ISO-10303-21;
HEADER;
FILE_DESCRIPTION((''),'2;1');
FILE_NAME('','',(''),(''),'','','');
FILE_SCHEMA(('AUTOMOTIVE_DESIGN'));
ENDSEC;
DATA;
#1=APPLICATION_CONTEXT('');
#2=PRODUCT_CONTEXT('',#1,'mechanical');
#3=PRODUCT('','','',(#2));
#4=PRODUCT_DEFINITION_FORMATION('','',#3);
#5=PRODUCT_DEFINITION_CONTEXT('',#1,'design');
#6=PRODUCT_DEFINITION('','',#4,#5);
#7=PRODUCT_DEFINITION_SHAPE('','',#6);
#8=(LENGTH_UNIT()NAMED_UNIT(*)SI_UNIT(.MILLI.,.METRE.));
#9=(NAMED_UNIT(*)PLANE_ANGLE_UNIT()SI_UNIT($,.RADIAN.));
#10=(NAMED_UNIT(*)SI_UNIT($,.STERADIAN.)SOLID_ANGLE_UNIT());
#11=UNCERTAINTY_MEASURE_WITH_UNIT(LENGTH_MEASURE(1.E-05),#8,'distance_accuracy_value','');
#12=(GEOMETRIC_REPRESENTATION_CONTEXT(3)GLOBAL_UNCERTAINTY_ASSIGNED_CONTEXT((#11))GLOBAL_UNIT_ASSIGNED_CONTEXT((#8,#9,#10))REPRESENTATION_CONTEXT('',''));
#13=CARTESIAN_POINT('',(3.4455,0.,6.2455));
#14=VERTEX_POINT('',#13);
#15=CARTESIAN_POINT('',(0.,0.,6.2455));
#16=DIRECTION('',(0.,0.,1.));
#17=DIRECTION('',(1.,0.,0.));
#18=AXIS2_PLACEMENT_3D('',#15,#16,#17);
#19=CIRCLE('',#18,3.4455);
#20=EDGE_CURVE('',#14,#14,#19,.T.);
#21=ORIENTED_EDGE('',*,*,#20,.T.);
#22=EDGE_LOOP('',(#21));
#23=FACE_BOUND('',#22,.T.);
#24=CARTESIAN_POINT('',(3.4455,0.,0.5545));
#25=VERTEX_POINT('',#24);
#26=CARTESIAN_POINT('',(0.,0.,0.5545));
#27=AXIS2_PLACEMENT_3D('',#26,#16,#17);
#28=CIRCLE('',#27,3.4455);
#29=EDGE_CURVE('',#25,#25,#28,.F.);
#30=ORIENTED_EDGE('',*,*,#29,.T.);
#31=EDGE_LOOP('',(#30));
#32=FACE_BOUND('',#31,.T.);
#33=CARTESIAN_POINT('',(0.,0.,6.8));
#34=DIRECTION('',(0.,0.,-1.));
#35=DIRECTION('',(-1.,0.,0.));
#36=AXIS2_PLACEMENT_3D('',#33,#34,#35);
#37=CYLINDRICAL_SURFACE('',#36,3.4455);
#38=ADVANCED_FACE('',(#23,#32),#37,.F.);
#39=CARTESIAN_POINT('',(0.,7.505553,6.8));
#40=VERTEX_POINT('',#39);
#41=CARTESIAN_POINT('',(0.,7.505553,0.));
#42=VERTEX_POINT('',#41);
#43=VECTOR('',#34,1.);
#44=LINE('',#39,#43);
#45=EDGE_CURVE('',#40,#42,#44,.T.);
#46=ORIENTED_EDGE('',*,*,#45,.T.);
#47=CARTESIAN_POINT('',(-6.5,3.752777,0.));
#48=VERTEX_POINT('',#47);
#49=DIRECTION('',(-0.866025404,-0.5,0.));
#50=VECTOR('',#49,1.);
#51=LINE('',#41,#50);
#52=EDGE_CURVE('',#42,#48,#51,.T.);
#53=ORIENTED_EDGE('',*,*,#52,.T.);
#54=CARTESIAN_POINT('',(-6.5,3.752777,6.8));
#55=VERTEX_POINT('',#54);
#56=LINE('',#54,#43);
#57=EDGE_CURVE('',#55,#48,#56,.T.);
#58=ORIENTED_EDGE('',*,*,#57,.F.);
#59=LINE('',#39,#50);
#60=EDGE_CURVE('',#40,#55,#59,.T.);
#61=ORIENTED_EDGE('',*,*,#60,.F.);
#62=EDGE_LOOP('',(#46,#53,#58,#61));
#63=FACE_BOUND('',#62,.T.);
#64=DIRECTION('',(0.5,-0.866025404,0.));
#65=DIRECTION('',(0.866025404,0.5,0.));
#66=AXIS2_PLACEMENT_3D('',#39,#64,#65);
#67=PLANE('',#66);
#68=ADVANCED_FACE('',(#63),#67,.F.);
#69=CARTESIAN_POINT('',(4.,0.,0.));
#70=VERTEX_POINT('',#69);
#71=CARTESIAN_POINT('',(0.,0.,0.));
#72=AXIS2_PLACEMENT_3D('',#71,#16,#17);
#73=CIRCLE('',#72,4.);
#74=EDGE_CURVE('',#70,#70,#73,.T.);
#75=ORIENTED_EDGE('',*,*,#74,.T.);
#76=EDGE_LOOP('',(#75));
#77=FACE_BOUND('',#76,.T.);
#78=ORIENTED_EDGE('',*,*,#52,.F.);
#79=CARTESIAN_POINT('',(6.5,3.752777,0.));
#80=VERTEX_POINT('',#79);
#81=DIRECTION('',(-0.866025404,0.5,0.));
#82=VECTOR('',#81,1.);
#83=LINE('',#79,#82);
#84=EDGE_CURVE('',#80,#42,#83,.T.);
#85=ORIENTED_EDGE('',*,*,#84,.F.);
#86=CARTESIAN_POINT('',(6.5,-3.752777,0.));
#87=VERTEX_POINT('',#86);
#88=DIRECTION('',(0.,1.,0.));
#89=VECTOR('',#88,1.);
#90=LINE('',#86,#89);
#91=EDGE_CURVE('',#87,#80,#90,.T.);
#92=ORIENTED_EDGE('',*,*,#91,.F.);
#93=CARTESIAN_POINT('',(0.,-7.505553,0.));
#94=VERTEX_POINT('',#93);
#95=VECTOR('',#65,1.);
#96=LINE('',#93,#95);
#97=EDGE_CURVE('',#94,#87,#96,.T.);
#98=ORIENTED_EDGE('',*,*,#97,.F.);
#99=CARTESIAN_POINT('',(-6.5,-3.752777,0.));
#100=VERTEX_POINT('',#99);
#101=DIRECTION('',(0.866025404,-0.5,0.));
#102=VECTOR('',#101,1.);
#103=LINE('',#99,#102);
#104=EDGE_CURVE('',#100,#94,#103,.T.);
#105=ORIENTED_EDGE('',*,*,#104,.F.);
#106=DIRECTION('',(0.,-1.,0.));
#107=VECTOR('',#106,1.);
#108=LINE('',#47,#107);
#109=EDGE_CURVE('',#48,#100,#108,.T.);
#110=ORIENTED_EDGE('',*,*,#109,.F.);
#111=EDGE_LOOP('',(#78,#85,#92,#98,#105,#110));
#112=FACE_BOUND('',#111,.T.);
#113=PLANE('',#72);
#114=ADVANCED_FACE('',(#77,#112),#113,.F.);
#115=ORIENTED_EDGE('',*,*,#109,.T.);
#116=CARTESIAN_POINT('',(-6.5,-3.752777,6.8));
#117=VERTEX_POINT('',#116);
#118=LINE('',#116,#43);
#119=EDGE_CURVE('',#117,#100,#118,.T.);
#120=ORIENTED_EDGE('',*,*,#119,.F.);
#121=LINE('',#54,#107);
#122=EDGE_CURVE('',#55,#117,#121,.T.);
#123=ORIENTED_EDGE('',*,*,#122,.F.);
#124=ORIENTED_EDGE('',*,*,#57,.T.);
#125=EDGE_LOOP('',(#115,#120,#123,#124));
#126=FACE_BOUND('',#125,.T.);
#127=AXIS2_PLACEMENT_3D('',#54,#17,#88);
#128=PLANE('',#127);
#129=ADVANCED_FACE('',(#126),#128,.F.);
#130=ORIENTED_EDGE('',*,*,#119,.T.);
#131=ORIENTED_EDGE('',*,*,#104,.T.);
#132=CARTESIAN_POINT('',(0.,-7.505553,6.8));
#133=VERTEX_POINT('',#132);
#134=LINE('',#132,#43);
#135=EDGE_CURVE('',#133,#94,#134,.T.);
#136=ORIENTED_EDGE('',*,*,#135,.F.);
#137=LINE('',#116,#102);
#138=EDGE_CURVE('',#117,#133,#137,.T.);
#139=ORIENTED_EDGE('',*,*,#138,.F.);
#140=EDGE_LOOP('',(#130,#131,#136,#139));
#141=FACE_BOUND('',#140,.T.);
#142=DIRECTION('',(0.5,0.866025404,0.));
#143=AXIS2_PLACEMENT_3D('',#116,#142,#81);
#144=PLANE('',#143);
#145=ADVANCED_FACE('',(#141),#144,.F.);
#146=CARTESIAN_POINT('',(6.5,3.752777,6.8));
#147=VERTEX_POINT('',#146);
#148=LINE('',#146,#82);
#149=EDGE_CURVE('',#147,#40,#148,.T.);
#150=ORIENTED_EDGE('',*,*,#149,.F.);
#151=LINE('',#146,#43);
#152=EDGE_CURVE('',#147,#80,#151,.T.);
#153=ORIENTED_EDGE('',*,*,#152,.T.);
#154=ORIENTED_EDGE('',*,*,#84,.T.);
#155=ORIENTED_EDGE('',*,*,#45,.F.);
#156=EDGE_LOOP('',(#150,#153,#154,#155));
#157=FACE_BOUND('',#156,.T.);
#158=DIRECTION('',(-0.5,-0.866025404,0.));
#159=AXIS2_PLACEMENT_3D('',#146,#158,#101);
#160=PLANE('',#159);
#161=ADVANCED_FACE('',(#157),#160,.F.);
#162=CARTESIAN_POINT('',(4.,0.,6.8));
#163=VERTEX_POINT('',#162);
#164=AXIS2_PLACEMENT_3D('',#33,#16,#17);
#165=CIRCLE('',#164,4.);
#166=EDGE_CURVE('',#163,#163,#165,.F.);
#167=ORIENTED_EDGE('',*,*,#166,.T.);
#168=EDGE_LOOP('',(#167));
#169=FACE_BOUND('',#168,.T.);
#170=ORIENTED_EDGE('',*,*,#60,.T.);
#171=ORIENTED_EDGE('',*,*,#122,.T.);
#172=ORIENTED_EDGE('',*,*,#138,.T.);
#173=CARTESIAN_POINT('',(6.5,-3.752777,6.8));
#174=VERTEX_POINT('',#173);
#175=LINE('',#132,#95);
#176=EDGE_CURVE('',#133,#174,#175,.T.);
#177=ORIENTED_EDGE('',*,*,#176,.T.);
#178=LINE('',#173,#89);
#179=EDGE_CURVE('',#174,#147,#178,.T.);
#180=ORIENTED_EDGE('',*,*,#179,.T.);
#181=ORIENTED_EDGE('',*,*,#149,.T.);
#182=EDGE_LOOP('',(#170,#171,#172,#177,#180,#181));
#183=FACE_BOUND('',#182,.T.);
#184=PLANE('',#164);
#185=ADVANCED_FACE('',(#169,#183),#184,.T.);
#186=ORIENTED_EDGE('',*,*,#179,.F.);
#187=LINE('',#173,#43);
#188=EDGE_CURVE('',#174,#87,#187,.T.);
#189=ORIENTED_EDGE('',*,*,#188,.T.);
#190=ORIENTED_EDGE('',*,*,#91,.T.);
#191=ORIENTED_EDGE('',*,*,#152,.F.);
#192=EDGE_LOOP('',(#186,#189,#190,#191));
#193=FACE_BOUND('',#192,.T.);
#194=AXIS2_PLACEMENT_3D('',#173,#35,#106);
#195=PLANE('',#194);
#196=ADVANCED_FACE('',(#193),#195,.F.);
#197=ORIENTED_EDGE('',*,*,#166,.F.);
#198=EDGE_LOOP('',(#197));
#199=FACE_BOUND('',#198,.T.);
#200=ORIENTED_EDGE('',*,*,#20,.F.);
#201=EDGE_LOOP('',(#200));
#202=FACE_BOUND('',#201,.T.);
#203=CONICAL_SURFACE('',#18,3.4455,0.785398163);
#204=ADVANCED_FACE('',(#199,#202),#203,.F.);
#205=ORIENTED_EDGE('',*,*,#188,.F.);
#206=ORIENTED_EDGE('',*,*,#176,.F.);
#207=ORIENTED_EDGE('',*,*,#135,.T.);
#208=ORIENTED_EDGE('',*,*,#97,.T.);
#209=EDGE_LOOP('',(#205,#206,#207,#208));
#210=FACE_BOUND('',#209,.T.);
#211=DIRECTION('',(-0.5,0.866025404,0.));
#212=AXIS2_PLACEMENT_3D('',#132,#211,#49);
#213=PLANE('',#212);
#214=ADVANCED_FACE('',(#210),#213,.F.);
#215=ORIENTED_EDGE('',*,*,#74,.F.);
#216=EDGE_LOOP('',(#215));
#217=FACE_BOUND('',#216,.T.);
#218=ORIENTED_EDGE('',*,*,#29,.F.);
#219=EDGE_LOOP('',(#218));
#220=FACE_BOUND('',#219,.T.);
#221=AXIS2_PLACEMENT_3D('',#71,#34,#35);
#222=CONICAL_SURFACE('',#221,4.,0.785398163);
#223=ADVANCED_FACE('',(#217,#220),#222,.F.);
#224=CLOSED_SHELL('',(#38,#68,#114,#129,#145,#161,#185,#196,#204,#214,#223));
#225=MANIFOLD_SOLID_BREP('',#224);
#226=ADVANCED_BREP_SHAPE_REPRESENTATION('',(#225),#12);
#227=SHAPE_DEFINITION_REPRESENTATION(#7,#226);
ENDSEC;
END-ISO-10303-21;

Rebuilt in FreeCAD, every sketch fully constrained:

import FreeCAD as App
import Part
import Sketcher

V = App.Vector
Q = App.Units.Quantity


def edges_at(feature, points):
    """Names of the edges that pass closest to the given points."""
    edges = feature.Shape.Edges
    near = lambda p: min(range(len(edges)), key=lambda i: edges[i].distToShape(Part.Vertex(*p))[0])
    return sorted({f"Edge{near(p) + 1}" for p in points})

doc = App.newDocument("Part")
params = doc.addObject("Spreadsheet::Sheet", "Params")
for row, (alias, value) in enumerate([
    ("pad1_length", "6.8 mm"),
    ("chamfer_size", "0.5545 mm"),
], start=1):
    params.set(f"A{row}", alias)
    params.set(f"B{row}", "=" + value)
    params.setAlias(f"B{row}", alias)

body = doc.addObject("PartDesign::Body", "Body")

# Sketch on XY plane
sketch1 = body.newObject("Sketcher::SketchObject", "Sketch")
sketch1.AttachmentSupport = (doc.getObject("XY_Plane"), [""])
sketch1.MapMode = "FlatFace"
sketch1.addGeometry([
    Part.LineSegment(V(0, 7.505553, 0), V(-6.5, 3.752777, 0)),  # 0
    Part.LineSegment(V(-6.5, 3.752777, 0), V(-6.5, -3.752777, 0)),  # 1
    Part.LineSegment(V(-6.5, -3.752777, 0), V(0, -7.505553, 0)),  # 2
    Part.LineSegment(V(0, -7.505553, 0), V(6.5, -3.752777, 0)),  # 3
    Part.LineSegment(V(6.5, -3.752777, 0), V(6.5, 3.752777, 0)),  # 4
    Part.LineSegment(V(6.5, 3.752777, 0), V(0, 7.505553, 0)),  # 5
    Part.Circle(V(0, 0, 0), V(0, 0, 1), 3.4455),  # 6
], False)
sketch1.addConstraint([
    Sketcher.Constraint("Coincident", 0, 2, 1, 1),
    Sketcher.Constraint("Coincident", 1, 2, 2, 1),
    Sketcher.Constraint("Coincident", 2, 2, 3, 1),
    Sketcher.Constraint("Coincident", 3, 2, 4, 1),
    Sketcher.Constraint("Coincident", 4, 2, 5, 1),
    Sketcher.Constraint("Coincident", 5, 2, 0, 1),
    Sketcher.Constraint("Vertical", 1),
    Sketcher.Constraint("Vertical", 4),
    Sketcher.Constraint("Coincident", 6, 3, -1, 1),
    Sketcher.Constraint("Symmetric", 0, 2, 3, 2, -1, 1),
    Sketcher.Constraint("Symmetric", 2, 2, 5, 2, -1, 1),
    Sketcher.Constraint("PointOnObject", 2, 2, -2),
    Sketcher.Constraint("Parallel", 2, 5),
    Sketcher.Constraint("Horizontal", 1, 2, 3, 2),
    Sketcher.Constraint("Angle", 0, Q("-150 deg")),
    Sketcher.Constraint("Diameter", 6, Q("6.891 mm")),
    Sketcher.Constraint("DistanceX", 1, 2, 3, 2, Q("13 mm")),
    Sketcher.Constraint("DistanceY", 1, 2, 1, 1, Q("7.505554 mm")),
])
pad1 = body.newObject("PartDesign::Pad", "Pad")
pad1.Profile = sketch1
pad1.setExpression("Length", "Params.pad1_length")
doc.recompute()

chamfer = body.newObject("PartDesign::Chamfer", "Chamfer")
chamfer.Base = (pad1, edges_at(pad1, [(-3.446, 0, 0), (-3.446, 0, 6.8)]))
chamfer.setExpression("Size", "Params.chamfer_size")

doc.recompute()
